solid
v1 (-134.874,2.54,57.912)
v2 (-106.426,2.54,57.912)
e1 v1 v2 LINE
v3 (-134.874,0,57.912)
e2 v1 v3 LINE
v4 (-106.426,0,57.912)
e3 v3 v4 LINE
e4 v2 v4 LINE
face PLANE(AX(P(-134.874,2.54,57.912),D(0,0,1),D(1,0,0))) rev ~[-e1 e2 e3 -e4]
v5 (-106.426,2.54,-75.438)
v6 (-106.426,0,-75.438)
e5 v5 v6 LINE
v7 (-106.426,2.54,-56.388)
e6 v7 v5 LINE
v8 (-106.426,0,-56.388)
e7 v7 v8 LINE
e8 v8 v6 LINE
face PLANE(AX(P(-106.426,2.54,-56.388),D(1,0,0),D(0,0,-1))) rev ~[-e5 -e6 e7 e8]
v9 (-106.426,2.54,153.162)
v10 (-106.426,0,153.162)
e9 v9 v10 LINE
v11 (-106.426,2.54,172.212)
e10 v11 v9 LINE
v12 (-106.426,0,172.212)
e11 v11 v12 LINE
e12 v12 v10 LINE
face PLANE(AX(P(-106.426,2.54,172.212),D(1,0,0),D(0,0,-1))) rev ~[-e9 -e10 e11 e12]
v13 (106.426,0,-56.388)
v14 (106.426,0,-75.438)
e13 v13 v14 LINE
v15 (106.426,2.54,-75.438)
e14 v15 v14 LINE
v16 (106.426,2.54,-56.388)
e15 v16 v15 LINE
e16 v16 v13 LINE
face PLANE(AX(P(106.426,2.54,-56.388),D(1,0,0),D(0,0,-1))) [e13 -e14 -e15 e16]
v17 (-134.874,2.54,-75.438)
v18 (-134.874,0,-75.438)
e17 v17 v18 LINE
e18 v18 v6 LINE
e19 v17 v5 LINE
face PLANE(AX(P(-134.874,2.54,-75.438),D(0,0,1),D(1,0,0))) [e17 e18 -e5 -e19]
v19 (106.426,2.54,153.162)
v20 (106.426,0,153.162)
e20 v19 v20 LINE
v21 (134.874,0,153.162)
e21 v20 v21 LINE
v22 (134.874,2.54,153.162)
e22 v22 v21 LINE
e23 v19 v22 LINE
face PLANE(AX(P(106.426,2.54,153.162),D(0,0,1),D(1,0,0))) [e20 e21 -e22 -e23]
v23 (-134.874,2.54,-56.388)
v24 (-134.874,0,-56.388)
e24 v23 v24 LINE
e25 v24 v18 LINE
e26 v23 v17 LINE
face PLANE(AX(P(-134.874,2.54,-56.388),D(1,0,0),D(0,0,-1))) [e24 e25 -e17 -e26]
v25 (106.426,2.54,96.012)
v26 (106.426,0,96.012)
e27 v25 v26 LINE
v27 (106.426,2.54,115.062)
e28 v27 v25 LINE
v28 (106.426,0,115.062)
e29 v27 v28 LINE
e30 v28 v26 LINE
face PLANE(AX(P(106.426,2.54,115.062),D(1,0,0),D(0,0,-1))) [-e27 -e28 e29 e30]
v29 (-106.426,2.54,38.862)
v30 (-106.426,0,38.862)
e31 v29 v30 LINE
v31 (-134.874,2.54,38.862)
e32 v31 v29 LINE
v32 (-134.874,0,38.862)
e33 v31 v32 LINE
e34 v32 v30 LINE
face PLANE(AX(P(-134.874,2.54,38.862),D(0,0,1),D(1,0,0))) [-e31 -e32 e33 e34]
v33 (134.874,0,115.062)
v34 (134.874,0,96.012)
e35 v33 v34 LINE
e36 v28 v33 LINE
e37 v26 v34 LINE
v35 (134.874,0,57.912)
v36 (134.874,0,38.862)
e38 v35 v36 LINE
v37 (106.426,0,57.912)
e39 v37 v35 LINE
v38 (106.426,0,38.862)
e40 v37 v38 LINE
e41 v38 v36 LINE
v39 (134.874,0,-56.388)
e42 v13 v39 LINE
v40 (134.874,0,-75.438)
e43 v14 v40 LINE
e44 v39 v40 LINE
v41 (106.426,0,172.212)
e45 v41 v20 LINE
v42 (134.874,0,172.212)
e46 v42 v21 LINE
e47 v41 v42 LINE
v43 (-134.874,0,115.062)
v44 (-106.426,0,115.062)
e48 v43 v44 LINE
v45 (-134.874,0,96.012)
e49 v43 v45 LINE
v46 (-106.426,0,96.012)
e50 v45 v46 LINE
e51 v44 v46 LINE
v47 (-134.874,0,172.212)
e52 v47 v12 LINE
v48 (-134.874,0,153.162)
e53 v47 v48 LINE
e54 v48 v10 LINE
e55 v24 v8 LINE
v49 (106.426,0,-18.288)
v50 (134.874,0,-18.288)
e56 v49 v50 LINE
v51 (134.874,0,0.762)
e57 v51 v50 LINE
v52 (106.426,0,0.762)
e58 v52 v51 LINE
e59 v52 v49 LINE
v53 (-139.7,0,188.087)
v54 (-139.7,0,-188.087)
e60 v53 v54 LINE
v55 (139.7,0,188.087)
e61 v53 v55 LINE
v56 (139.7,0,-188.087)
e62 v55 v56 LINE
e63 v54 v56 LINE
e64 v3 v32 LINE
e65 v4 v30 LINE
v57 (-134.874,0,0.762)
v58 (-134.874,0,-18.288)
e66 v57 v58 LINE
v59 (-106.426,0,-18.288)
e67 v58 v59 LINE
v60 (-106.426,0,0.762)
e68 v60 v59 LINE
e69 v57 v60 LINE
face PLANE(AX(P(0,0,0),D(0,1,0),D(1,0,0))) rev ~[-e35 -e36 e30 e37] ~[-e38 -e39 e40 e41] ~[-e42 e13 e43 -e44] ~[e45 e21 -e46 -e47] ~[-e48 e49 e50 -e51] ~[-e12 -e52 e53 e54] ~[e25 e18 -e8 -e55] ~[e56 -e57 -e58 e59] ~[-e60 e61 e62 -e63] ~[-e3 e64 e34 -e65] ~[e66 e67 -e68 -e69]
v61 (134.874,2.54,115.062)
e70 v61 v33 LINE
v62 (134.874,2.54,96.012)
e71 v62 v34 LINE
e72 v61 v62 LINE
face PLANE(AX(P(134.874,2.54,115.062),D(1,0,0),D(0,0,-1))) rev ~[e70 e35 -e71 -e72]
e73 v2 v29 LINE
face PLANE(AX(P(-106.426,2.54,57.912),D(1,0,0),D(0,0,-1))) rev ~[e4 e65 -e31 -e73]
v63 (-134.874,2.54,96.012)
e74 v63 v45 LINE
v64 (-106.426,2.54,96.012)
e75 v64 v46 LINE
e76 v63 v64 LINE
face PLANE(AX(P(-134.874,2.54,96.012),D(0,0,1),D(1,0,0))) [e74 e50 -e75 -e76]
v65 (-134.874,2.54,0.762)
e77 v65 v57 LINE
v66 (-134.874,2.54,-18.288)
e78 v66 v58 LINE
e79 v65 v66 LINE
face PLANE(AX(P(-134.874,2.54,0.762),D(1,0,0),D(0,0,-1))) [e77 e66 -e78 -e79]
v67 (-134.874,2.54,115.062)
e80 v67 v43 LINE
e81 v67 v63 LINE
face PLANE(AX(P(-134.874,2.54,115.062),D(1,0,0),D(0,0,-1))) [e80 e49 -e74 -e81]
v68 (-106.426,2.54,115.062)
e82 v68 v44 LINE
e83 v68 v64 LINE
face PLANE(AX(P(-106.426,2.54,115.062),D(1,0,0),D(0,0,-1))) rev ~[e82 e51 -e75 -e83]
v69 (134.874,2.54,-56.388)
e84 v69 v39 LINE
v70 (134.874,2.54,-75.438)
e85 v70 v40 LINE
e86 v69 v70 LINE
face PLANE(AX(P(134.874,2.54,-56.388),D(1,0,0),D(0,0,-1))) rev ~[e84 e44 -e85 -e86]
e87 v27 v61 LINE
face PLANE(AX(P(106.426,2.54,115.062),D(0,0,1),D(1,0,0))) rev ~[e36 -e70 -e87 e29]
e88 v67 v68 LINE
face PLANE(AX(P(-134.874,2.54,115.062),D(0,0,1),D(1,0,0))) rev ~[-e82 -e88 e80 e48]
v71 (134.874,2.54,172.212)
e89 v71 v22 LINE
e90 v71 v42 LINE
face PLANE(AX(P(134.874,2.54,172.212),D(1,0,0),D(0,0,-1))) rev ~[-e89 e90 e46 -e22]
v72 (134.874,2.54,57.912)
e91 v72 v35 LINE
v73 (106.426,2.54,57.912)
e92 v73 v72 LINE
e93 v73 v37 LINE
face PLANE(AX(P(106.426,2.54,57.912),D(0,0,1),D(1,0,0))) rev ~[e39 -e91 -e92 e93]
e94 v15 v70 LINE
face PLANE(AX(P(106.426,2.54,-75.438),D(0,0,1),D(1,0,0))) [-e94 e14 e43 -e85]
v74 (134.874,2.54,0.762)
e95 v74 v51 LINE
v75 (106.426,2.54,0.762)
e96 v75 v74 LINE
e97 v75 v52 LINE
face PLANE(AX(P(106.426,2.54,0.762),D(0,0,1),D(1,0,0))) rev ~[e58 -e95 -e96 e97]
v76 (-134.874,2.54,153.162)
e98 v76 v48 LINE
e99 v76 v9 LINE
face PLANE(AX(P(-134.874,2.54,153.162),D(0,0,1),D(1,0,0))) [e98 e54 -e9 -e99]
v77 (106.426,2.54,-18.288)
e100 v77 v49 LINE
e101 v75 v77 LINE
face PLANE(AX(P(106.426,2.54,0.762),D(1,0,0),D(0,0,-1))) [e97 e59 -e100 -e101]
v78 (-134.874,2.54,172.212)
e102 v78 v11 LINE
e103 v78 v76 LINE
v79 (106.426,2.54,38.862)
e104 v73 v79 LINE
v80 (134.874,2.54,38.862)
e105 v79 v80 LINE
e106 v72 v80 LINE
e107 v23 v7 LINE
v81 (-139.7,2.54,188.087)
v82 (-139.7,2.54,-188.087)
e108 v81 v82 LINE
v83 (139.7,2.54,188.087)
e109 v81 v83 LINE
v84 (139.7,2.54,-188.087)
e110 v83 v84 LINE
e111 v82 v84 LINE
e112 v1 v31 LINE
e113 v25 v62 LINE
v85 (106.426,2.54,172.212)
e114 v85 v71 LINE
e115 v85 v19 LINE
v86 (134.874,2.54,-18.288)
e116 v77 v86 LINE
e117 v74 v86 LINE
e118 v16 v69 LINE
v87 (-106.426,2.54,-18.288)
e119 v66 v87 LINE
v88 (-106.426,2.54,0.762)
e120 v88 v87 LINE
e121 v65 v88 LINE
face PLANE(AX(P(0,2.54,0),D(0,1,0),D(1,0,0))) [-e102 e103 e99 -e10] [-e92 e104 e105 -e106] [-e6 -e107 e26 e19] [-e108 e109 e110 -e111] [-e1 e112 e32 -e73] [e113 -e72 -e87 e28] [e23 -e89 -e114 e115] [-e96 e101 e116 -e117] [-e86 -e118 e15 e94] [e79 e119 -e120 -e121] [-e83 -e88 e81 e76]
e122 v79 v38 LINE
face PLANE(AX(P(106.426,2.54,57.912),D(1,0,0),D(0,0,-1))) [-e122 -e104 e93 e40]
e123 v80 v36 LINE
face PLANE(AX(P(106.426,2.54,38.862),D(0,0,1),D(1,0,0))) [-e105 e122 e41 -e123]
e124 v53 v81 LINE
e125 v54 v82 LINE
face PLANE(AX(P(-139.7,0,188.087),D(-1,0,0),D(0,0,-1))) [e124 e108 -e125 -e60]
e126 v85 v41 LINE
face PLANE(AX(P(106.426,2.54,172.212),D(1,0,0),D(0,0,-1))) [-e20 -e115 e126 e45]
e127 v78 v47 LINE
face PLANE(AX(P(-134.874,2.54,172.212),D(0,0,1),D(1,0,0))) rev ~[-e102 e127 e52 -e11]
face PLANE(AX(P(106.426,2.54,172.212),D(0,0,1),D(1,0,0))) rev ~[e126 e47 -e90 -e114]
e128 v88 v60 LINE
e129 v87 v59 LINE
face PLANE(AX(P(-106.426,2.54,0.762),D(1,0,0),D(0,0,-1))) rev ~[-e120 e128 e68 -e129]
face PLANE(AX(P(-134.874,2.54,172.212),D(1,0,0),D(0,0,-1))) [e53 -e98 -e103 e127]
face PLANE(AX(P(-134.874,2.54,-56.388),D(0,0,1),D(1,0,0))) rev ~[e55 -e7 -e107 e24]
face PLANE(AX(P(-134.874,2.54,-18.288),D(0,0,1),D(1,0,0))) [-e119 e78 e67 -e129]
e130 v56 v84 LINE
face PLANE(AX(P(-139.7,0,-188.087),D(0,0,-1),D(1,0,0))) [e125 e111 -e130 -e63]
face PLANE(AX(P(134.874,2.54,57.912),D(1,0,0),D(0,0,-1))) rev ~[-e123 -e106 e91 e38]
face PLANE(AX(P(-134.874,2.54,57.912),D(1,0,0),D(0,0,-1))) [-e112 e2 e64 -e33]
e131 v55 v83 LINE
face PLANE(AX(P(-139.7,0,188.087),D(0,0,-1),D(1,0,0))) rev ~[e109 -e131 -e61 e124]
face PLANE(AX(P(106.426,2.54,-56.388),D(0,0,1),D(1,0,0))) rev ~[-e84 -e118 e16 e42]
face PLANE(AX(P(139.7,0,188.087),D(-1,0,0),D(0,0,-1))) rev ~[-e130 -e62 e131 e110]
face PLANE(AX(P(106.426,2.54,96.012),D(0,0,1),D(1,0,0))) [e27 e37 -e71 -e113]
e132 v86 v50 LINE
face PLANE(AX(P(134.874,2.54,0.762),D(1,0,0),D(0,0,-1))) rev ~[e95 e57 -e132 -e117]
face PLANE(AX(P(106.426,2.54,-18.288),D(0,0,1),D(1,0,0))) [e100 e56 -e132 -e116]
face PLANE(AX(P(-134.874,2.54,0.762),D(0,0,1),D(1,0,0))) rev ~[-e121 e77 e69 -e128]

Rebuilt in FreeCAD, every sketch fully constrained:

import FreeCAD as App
import Part
import Sketcher

V = App.Vector
Q = App.Units.Quantity

doc = App.newDocument("Part")
body = doc.addObject("PartDesign::Body", "Body")

# Sketch on XZ plane
sketch1 = body.newObject("Sketcher::SketchObject", "Sketch")
sketch1.AttachmentSupport = (doc.getObject("XZ_Plane"), [""])
sketch1.MapMode = "FlatFace"
sketch1.addGeometry([
    Part.LineSegment(V(-140, -188, 0), V(-140, 188, 0)),
    Part.LineSegment(V(-140, 188, 0), V(140, 188, 0)),
    Part.LineSegment(V(140, 188, 0), V(140, -188, 0)),
    Part.LineSegment(V(140, -188, 0), V(-140, -188, 0)),
], False)
sketch1.addConstraint([
    Sketcher.Constraint("Coincident", 0, 2, 1, 1),
    Sketcher.Constraint("Coincident", 1, 2, 2, 1),
    Sketcher.Constraint("Coincident", 2, 2, 3, 1),
    Sketcher.Constraint("Coincident", 3, 2, 0, 1),
    Sketcher.Constraint("Vertical", 0),
    Sketcher.Constraint("Horizontal", 1),
    Sketcher.Constraint("Vertical", 2),
    Sketcher.Constraint("Horizontal", 3),
    Sketcher.Constraint("Symmetric", 0, 2, 2, 2, -1, 1),
    Sketcher.Constraint("DistanceX", 1, 1, 1, 2, Q("11 in")),
    Sketcher.Constraint("DistanceY", 0, 1, 0, 2, Q("14.81 in")),
])
pad1 = body.newObject("PartDesign::Pad", "Pad")
pad1.Profile = sketch1
pad1.Length = Q("0.1 in")
pad1.Reversed = True

# Sketch on XZ plane
sketch2 = body.newObject("Sketcher::SketchObject", "Sketch001")
sketch2.AttachmentSupport = (doc.getObject("XZ_Plane"), [""])
sketch2.MapMode = "FlatFace"
sketch2.AttachmentOffset = App.Placement(V(0, 0, -0.1 * 25.4), App.Rotation())
sketch2.addGeometry([
    Part.LineSegment(V(-135, 96, 0), V(-135, 115, 0)),  # 0
    Part.LineSegment(V(-135, 115, 0), V(-106, 115, 0)),  # 1
    Part.LineSegment(V(-106, 115, 0), V(-106, 96, 0)),  # 2
    Part.LineSegment(V(-106, 96, 0), V(-135, 96, 0)),  # 3
    Part.LineSegment(V(-135, 153, 0), V(-135, 172, 0)),  # 4
    Part.LineSegment(V(-135, 172, 0), V(-106, 172, 0)),  # 5
    Part.LineSegment(V(-106, 172, 0), V(-106, 153, 0)),  # 6
    Part.LineSegment(V(-106, 153, 0), V(-135, 153, 0)),  # 7
    Part.LineSegment(V(-135, 39, 0), V(-135, 58, 0)),  # 8
    Part.LineSegment(V(-135, 58, 0), V(-106, 58, 0)),  # 9
    Part.LineSegment(V(-106, 58, 0), V(-106, 39, 0)),  # 10
    Part.LineSegment(V(-106, 39, 0), V(-135, 39, 0)),  # 11
    Part.LineSegment(V(-135, -18, 0), V(-135, 1, 0)),  # 12
    Part.LineSegment(V(-135, 1, 0), V(-106, 1, 0)),  # 13
    Part.LineSegment(V(-106, 1, 0), V(-106, -18, 0)),  # 14
    Part.LineSegment(V(-106, -18, 0), V(-135, -18, 0)),  # 15
    Part.LineSegment(V(-135, -75, 0), V(-135, -56, 0)),  # 16
    Part.LineSegment(V(-135, -56, 0), V(-106, -56, 0)),  # 17
    Part.LineSegment(V(-106, -56, 0), V(-106, -75, 0)),  # 18
    Part.LineSegment(V(-106, -75, 0), V(-135, -75, 0)),  # 19
    Part.LineSegment(V(106, -75, 0), V(106, -56, 0)),  # 20
    Part.LineSegment(V(106, -56, 0), V(135, -56, 0)),  # 21
    Part.LineSegment(V(135, -56, 0), V(135, -75, 0)),  # 22
    Part.LineSegment(V(135, -75, 0), V(106, -75, 0)),  # 23
    Part.LineSegment(V(106, -18, 0), V(106, 1, 0)),  # 24
    Part.LineSegment(V(106, 1, 0), V(135, 1, 0)),  # 25
    Part.LineSegment(V(135, 1, 0), V(135, -18, 0)),  # 26
    Part.LineSegment(V(135, -18, 0), V(106, -18, 0)),  # 27
    Part.LineSegment(V(106, 39, 0), V(106, 58, 0)),  # 28
    Part.LineSegment(V(106, 58, 0), V(135, 58, 0)),  # 29
    Part.LineSegment(V(135, 58, 0), V(135, 39, 0)),  # 30
    Part.LineSegment(V(135, 39, 0), V(106, 39, 0)),  # 31
    Part.LineSegment(V(106, 96, 0), V(106, 115, 0)),  # 32
    Part.LineSegment(V(106, 115, 0), V(135, 115, 0)),  # 33
    Part.LineSegment(V(135, 115, 0), V(135, 96, 0)),  # 34
    Part.LineSegment(V(135, 96, 0), V(106, 96, 0)),  # 35
    Part.LineSegment(V(106, 153, 0), V(106, 172, 0)),  # 36
    Part.LineSegment(V(106, 172, 0), V(135, 172, 0)),  # 37
    Part.LineSegment(V(135, 172, 0), V(135, 153, 0)),  # 38
    Part.LineSegment(V(135, 153, 0), V(106, 153, 0)),  # 39
], False)
sketch2.addConstraint([
    Sketcher.Constraint("Coincident", 0, 2, 1, 1),
    Sketcher.Constraint("Coincident", 1, 2, 2, 1),
    Sketcher.Constraint("Coincident", 2, 2, 3, 1),
    Sketcher.Constraint("Coincident", 3, 2, 0, 1),
    Sketcher.Constraint("Coincident", 4, 2, 5, 1),
    Sketcher.Constraint("Coincident", 5, 2, 6, 1),
    Sketcher.Constraint("Coincident", 6, 2, 7, 1),
    Sketcher.Constraint("Coincident", 7, 2, 4, 1),
    Sketcher.Constraint("Coincident", 8, 2, 9, 1),
    Sketcher.Constraint("Coincident", 9, 2, 10, 1),
    Sketcher.Constraint("Coincident", 10, 2, 11, 1),
    Sketcher.Constraint("Coincident", 11, 2, 8, 1),
    Sketcher.Constraint("Coincident", 12, 2, 13, 1),
    Sketcher.Constraint("Coincident", 13, 2, 14, 1),
    Sketcher.Constraint("Coincident", 14, 2, 15, 1),
    Sketcher.Constraint("Coincident", 15, 2, 12, 1),
    Sketcher.Constraint("Coincident", 16, 2, 17, 1),
    Sketcher.Constraint("Coincident", 17, 2, 18, 1),
    Sketcher.Constraint("Coincident", 18, 2, 19, 1),
    Sketcher.Constraint("Coincident", 19, 2, 16, 1),
    Sketcher.Constraint("Coincident", 20, 2, 21, 1),
    Sketcher.Constraint("Coincident", 21, 2, 22, 1),
    Sketcher.Constraint("Coincident", 22, 2, 23, 1),
    Sketcher.Constraint("Coincident", 23, 2, 20, 1),
    Sketcher.Constraint("Coincident", 24, 2, 25, 1),
    Sketcher.Constraint("Coincident", 25, 2, 26, 1),
    Sketcher.Constraint("Coincident", 26, 2, 27, 1),
    Sketcher.Constraint("Coincident", 27, 2, 24, 1),
    Sketcher.Constraint("Coincident", 28, 2, 29, 1),
    Sketcher.Constraint("Coincident", 29, 2, 30, 1),
    Sketcher.Constraint("Coincident", 30, 2, 31, 1),
    Sketcher.Constraint("Coincident", 31, 2, 28, 1),
    Sketcher.Constraint("Coincident", 32, 2, 33, 1),
    Sketcher.Constraint("Coincident", 33, 2, 34, 1),
    Sketcher.Constraint("Coincident", 34, 2, 35, 1),
    Sketcher.Constraint("Coincident", 35, 2, 32, 1),
    Sketcher.Constraint("Coincident", 36, 2, 37, 1),
    Sketcher.Constraint("Coincident", 37, 2, 38, 1),
    Sketcher.Constraint("Coincident", 38, 2, 39, 1),
    Sketcher.Constraint("Coincident", 39, 2, 36, 1),
    Sketcher.Constraint("Vertical", 0),
    Sketcher.Constraint("Horizontal", 1),
    Sketcher.Constraint("Vertical", 2),
    Sketcher.Constraint("Horizontal", 3),
    Sketcher.Constraint("Vertical", 4),
    Sketcher.Constraint("Horizontal", 5),
    Sketcher.Constraint("Vertical", 6),
    Sketcher.Constraint("Horizontal", 7),
    Sketcher.Constraint("Vertical", 8),
    Sketcher.Constraint("Horizontal", 9),
    Sketcher.Constraint("Vertical", 10),
    Sketcher.Constraint("Horizontal", 11),
    Sketcher.Constraint("Vertical", 12),
    Sketcher.Constraint("Horizontal", 13),
    Sketcher.Constraint("Vertical", 14),
    Sketcher.Constraint("Horizontal", 15),
    Sketcher.Constraint("Vertical", 16),
    Sketcher.Constraint("Horizontal", 17),
    Sketcher.Constraint("Vertical", 18),
    Sketcher.Constraint("Horizontal", 19),
    Sketcher.Constraint("Vertical", 20),
    Sketcher.Constraint("Horizontal", 21),
    Sketcher.Constraint("Vertical", 22),
    Sketcher.Constraint("Horizontal", 23),
    Sketcher.Constraint("Vertical", 24),
    Sketcher.Constraint("Horizontal", 25),
    Sketcher.Constraint("Vertical", 26),
    Sketcher.Constraint("Horizontal", 27),
    Sketcher.Constraint("Vertical", 28),
    Sketcher.Constraint("Horizontal", 29),
    Sketcher.Constraint("Vertical", 30),
    Sketcher.Constraint("Horizontal", 31),
    Sketcher.Constraint("Vertical", 32),
    Sketcher.Constraint("Horizontal", 33),
    Sketcher.Constraint("Vertical", 34),
    Sketcher.Constraint("Horizontal", 35),
    Sketcher.Constraint("Vertical", 36),
    Sketcher.Constraint("Horizontal", 37),
    Sketcher.Constraint("Vertical", 38),
    Sketcher.Constraint("Horizontal", 39),
    Sketcher.Constraint("Symmetric", 17, 2, 20, 2, -2),
    Sketcher.Constraint("Symmetric", 19, 2, 22, 2, -2),
    Sketcher.Constraint("Symmetric", 13, 2, 24, 2, -2),
    Sketcher.Constraint("Symmetric", 15, 2, 26, 2, -2),
    Sketcher.Constraint("Symmetric", 9, 2, 28, 2, -2),
    Sketcher.Constraint("Symmetric", 11, 2, 30, 2, -2),
    Sketcher.Constraint("Symmetric", 1, 2, 32, 2, -2),
    Sketcher.Constraint("Symmetric", 3, 2, 34, 2, -2),
    Sketcher.Constraint("Symmetric", 5, 2, 36, 2, -2),
    Sketcher.Constraint("Symmetric", 7, 2, 38, 2, -2),
    Sketcher.Constraint("Vertical", 3, 2, 4, 2),
    Sketcher.Constraint("Vertical", 2, 2, 5, 2),
    Sketcher.Constraint("Vertical", 7, 2, 8, 2),
    Sketcher.Constraint("Vertical", 6, 2, 9, 2),
    Sketcher.Constraint("Vertical", 11, 2, 12, 2),
    Sketcher.Constraint("Vertical", 10, 2, 13, 2),
    Sketcher.Constraint("Vertical", 15, 2, 16, 2),
    Sketcher.Constraint("Vertical", 14, 2, 17, 2),
    Sketcher.Constraint("Equal", 2, 4),
    Sketcher.Constraint("Equal", 6, 8),
    Sketcher.Constraint("Equal", 10, 12),
    Sketcher.Constraint("Equal", 14, 16),
    Sketcher.Constraint("DistanceY", 3, 2, 4, 2, Q("3 in")),
    Sketcher.Constraint("DistanceY", 10, 2, 1, 2, Q("3 in")),
    Sketcher.Constraint("DistanceY", 14, 2, 9, 2, Q("3 in")),
    Sketcher.Constraint("DistanceY", 18, 2, 13, 2, Q("3 in")),
    Sketcher.Constraint("DistanceX", 1, 1, 1, 2, Q("1.12 in")),
    Sketcher.Constraint("DistanceY", 0, 1, 0, 2, Q("0.75 in")),
    Sketcher.Constraint("DistanceX", 17, 2, 21, 2, Q("9.5 in")),
    Sketcher.Constraint("DistanceY", -1, 1, 0, 2, Q("4.53 in")),
])
pocket1 = body.newObject("PartDesign::Pocket", "Pocket")
pocket1.Profile = sketch2
pocket1.Type = "ThroughAll"
pocket1.Reversed = True

doc.recompute()
